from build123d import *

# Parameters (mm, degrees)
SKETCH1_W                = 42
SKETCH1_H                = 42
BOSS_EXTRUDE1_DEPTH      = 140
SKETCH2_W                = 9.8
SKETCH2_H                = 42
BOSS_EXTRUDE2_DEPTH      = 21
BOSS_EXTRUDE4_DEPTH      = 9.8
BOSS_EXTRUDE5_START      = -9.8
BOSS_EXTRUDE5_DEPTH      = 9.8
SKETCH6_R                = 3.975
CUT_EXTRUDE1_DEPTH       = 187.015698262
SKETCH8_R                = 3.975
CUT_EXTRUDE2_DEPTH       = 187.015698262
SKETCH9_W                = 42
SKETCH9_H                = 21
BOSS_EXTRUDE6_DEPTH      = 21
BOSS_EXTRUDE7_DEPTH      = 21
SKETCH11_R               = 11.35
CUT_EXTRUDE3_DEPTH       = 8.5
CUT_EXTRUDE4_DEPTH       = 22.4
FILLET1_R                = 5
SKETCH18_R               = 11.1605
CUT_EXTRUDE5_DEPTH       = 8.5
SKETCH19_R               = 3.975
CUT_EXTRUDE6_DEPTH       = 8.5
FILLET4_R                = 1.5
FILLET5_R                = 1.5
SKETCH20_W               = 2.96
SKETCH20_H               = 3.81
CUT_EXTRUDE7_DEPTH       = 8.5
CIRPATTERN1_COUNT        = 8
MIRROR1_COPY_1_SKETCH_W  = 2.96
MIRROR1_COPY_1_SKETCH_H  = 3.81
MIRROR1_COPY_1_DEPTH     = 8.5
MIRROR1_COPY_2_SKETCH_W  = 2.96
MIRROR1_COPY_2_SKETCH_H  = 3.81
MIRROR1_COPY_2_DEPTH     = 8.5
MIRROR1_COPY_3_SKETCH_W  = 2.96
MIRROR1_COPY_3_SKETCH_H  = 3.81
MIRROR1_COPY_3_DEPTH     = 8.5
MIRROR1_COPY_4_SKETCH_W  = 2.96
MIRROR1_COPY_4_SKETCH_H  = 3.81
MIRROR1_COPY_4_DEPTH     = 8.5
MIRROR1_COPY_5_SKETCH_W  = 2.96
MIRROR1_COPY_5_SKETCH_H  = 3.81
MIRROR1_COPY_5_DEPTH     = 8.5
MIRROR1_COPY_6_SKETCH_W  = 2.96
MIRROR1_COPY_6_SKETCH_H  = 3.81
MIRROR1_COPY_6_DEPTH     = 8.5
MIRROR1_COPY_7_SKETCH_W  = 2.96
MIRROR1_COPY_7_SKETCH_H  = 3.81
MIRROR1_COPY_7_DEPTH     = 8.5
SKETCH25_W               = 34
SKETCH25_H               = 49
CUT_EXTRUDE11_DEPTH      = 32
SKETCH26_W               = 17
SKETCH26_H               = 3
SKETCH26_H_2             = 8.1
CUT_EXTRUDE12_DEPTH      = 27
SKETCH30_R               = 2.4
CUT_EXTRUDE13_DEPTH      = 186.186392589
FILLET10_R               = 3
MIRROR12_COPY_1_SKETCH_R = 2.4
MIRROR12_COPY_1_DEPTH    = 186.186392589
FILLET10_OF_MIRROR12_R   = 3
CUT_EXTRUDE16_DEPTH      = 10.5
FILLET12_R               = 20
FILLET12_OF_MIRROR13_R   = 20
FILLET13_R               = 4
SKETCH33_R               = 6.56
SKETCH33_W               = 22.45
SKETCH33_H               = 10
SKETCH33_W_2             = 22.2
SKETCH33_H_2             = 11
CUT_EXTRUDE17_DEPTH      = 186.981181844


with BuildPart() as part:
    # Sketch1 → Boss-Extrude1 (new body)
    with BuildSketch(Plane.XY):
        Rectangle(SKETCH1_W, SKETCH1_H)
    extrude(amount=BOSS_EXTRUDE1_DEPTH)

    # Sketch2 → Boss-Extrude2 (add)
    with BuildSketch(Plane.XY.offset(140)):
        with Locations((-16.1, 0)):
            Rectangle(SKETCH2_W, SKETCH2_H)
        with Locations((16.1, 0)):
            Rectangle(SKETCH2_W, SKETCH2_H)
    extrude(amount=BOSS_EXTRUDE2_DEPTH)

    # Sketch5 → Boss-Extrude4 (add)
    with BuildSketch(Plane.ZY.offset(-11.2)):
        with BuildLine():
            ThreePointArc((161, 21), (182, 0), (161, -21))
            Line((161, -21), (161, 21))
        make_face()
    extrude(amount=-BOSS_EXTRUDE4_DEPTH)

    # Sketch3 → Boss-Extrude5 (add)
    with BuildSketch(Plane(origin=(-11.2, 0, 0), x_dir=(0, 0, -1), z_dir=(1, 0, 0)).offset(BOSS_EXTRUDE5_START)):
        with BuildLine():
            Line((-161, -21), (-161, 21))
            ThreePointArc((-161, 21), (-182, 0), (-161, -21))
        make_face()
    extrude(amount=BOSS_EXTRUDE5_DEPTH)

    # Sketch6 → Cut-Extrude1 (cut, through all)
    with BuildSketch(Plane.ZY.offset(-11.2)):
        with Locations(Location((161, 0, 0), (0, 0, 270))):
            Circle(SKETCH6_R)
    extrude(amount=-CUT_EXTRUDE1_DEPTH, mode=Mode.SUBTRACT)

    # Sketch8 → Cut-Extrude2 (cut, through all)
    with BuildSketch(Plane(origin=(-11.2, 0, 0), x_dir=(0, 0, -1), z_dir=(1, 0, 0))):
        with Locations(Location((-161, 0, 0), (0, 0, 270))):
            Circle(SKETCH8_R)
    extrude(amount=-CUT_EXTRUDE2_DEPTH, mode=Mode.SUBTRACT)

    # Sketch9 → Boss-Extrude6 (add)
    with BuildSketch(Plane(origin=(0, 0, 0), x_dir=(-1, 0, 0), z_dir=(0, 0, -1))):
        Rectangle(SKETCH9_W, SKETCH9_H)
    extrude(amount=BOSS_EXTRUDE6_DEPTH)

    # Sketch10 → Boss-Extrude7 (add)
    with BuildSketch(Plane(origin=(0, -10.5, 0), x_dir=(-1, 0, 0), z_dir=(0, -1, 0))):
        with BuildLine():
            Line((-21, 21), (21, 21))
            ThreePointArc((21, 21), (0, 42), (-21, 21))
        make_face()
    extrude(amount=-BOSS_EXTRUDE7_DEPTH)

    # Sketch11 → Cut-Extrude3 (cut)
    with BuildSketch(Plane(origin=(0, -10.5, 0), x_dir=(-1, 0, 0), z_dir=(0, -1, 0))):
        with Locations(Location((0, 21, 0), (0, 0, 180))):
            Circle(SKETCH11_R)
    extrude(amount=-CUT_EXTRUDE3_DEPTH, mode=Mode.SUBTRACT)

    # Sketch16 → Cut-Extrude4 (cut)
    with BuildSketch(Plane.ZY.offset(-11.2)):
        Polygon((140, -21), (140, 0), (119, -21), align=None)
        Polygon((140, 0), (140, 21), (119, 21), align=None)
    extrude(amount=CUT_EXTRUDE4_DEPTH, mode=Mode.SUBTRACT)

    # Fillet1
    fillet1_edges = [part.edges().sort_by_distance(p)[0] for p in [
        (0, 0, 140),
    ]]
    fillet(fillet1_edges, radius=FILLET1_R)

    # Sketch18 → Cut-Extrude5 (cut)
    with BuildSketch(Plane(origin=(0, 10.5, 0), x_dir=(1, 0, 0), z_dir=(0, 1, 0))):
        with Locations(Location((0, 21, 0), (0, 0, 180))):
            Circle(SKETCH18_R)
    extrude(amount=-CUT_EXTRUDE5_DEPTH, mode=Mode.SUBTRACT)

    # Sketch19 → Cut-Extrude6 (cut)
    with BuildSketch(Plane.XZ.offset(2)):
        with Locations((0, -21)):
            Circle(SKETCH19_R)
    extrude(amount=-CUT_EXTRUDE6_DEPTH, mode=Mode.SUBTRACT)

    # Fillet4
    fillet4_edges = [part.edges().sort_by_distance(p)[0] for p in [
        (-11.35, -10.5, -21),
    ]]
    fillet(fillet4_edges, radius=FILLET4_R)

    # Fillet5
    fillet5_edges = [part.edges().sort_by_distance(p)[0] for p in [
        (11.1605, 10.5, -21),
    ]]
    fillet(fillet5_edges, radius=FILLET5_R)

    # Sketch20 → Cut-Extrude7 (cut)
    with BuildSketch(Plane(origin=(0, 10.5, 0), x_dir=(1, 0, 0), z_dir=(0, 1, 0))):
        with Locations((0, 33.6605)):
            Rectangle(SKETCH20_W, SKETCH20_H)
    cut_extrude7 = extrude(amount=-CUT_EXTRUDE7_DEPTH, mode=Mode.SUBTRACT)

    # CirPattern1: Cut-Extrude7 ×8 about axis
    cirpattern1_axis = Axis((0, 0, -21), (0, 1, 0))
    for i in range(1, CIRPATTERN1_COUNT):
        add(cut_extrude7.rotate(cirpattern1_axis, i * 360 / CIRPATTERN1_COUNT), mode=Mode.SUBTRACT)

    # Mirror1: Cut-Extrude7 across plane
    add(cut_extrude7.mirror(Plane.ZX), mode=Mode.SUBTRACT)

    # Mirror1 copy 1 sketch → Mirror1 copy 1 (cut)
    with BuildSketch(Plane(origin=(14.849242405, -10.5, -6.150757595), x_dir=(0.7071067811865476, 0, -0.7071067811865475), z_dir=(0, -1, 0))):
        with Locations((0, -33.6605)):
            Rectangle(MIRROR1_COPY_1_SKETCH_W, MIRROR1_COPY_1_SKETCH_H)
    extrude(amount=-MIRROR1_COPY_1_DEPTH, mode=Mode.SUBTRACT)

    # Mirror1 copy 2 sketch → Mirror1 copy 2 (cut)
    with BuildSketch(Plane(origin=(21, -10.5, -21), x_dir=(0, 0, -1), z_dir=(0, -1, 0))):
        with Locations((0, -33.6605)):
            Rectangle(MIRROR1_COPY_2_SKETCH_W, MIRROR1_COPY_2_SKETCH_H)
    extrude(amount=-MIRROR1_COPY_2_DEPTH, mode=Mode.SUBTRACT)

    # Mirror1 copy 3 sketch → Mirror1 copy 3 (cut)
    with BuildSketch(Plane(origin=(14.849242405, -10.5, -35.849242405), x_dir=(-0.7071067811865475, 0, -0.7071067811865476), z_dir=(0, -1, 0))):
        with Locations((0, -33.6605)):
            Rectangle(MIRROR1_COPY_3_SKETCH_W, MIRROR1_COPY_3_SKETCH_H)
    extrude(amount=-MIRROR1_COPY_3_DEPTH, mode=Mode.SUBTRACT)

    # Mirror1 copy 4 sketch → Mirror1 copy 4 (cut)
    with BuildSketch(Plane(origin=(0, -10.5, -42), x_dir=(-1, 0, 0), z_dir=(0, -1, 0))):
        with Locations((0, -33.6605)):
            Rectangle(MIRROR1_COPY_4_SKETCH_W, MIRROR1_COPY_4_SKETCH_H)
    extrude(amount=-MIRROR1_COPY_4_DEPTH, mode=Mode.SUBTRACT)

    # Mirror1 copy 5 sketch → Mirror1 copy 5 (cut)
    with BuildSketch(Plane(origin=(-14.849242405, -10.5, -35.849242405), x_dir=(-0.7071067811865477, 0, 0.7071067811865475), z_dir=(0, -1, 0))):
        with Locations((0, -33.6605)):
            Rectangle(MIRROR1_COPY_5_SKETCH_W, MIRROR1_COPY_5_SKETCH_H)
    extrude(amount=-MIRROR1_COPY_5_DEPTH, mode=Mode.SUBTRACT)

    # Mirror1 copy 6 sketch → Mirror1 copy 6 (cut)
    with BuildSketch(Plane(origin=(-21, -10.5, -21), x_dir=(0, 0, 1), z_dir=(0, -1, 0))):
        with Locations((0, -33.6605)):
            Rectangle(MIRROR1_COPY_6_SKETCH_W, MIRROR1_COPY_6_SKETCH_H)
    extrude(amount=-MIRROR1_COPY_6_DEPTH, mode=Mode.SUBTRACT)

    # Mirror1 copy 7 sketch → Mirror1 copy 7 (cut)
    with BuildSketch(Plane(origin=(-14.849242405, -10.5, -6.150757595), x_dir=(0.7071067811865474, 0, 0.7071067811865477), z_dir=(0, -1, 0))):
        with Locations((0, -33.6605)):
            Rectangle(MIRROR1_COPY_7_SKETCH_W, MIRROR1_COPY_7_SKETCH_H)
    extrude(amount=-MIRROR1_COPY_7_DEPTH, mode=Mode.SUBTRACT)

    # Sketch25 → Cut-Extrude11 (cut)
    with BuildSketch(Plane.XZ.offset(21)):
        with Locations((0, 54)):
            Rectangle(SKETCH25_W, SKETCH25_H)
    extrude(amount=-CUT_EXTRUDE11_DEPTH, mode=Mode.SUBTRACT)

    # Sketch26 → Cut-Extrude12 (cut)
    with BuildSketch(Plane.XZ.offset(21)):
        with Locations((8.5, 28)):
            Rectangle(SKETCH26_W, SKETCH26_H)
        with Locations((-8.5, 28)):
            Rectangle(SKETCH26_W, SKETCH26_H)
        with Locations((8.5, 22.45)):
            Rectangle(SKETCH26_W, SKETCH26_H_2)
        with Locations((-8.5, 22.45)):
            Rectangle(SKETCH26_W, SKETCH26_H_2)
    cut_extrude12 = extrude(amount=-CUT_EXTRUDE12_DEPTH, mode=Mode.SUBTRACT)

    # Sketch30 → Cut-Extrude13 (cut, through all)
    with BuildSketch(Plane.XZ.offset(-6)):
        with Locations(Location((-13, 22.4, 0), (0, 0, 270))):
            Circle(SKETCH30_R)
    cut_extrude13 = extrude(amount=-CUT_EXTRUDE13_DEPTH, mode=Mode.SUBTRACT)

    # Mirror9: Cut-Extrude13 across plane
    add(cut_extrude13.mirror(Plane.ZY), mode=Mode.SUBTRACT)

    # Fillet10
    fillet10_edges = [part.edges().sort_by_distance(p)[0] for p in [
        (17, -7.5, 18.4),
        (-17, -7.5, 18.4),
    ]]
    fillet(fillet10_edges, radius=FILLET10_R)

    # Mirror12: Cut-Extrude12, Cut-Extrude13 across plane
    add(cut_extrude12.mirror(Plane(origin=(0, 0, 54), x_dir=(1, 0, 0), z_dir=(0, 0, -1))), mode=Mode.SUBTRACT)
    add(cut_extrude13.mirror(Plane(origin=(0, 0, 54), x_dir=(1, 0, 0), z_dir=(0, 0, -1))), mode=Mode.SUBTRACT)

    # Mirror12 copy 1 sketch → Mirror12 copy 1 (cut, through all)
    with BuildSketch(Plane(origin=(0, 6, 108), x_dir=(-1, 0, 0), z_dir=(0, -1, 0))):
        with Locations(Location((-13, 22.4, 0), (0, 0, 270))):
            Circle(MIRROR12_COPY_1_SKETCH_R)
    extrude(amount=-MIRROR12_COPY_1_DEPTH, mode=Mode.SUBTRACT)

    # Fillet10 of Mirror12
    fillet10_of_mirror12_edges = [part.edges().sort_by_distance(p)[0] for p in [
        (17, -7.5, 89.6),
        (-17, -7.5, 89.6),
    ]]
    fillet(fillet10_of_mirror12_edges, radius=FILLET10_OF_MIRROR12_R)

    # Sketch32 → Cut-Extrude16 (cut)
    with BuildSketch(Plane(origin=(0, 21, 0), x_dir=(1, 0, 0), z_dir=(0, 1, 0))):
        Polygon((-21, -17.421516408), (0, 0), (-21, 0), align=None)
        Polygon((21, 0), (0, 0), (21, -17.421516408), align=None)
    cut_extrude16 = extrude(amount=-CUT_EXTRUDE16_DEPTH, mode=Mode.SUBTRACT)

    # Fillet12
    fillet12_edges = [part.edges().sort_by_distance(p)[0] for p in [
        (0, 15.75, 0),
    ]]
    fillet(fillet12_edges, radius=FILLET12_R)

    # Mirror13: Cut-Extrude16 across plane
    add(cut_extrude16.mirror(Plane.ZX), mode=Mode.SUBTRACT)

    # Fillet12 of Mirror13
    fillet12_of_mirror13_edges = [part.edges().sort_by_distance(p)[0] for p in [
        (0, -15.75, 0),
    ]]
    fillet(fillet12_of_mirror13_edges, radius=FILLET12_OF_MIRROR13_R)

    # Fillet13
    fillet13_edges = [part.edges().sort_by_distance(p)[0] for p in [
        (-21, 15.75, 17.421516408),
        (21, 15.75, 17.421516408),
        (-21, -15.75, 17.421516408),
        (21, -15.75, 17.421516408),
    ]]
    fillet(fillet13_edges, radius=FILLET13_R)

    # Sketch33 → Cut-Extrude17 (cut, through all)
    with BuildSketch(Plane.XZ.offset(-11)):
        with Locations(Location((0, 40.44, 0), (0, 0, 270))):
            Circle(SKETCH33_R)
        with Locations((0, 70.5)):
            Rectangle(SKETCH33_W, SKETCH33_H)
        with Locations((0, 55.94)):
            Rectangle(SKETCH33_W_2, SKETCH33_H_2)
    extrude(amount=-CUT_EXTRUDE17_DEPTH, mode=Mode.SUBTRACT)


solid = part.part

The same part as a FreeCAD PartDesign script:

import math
import FreeCAD as App
import Part
import Sketcher
Q = App.Units.Quantity


def edges_at(feature, points):
    """Names of the edges that pass closest to the given points."""
    edges = feature.Shape.Edges
    near = lambda p: min(range(len(edges)), key=lambda i: edges[i].distToShape(Part.Vertex(*p))[0])
    return sorted({f"Edge{near(p) + 1}" for p in points})

doc = App.newDocument("Part")
body = doc.addObject("PartDesign::Body", "Body")

sketch1 = doc.addObject("Sketcher::SketchObject", "Sketch")
body.addObject(sketch1)
sketch1.AttachmentSupport = (doc.XY_Plane, [""])
sketch1.MapMode = "FlatFace"
sketch1.addGeometry(Part.LineSegment(App.Vector(-21, 21, 0), App.Vector(-21, -21, 0)), False)
sketch1.addGeometry(Part.LineSegment(App.Vector(-21, -21, 0), App.Vector(21, -21, 0)), False)
sketch1.addGeometry(Part.LineSegment(App.Vector(21, -21, 0), App.Vector(21, 21, 0)), False)
sketch1.addGeometry(Part.LineSegment(App.Vector(21, 21, 0), App.Vector(-21, 21, 0)), False)
sketch1.addConstraint(Sketcher.Constraint("Coincident", 0, 2, 1, 1))
sketch1.addConstraint(Sketcher.Constraint("Coincident", 1, 2, 2, 1))
sketch1.addConstraint(Sketcher.Constraint("Coincident", 2, 2, 3, 1))
sketch1.addConstraint(Sketcher.Constraint("Coincident", 3, 2, 0, 1))
sketch1.addConstraint(Sketcher.Constraint("Vertical", 0))
sketch1.addConstraint(Sketcher.Constraint("Horizontal", 1))
sketch1.addConstraint(Sketcher.Constraint("Vertical", 2))
sketch1.addConstraint(Sketcher.Constraint("Horizontal", 3))
sketch1.addConstraint(Sketcher.Constraint("Symmetric", 0, 2, 2, 2, -1, 1))
sketch1.addConstraint(Sketcher.Constraint("Equal", 3, 0))
sketch1.addConstraint(Sketcher.Constraint("DistanceX", 1, 1, 1, 2, Q("42 mm")))
pad1 = doc.addObject("PartDesign::Pad", "Pad")
body.addObject(pad1)
pad1.Profile = sketch1
pad1.Length = 140

sketch2 = doc.addObject("Sketcher::SketchObject", "Sketch001")
body.addObject(sketch2)
sketch2.AttachmentSupport = (doc.XY_Plane, [""])
sketch2.MapMode = "FlatFace"
sketch2.AttachmentOffset = App.Placement(App.Vector(0, 0, 140), App.Rotation())
sketch2.addGeometry(Part.LineSegment(App.Vector(-21, 21, 0), App.Vector(-21, -21, 0)), False)
sketch2.addGeometry(Part.LineSegment(App.Vector(-21, -21, 0), App.Vector(-11, -21, 0)), False)
sketch2.addGeometry(Part.LineSegment(App.Vector(-11, -21, 0), App.Vector(-11, 21, 0)), False)
sketch2.addGeometry(Part.LineSegment(App.Vector(-11, 21, 0), App.Vector(-21, 21, 0)), False)
sketch2.addGeometry(Part.LineSegment(App.Vector(11, 21, 0), App.Vector(11, -21, 0)), False)
sketch2.addGeometry(Part.LineSegment(App.Vector(11, -21, 0), App.Vector(21, -21, 0)), False)
sketch2.addGeometry(Part.LineSegment(App.Vector(21, -21, 0), App.Vector(21, 21, 0)), False)
sketch2.addGeometry(Part.LineSegment(App.Vector(21, 21, 0), App.Vector(11, 21, 0)), False)
sketch2.addConstraint(Sketcher.Constraint("Coincident", 0, 2, 1, 1))
sketch2.addConstraint(Sketcher.Constraint("Coincident", 1, 2, 2, 1))
sketch2.addConstraint(Sketcher.Constraint("Coincident", 2, 2, 3, 1))
sketch2.addConstraint(Sketcher.Constraint("Coincident", 3, 2, 0, 1))
sketch2.addConstraint(Sketcher.Constraint("Coincident", 4, 2, 5, 1))
sketch2.addConstraint(Sketcher.Constraint("Coincident", 5, 2, 6, 1))
sketch2.addConstraint(Sketcher.Constraint("Coincident", 6, 2, 7, 1))
sketch2.addConstraint(Sketcher.Constraint("Coincident", 7, 2, 4, 1))
sketch2.addConstraint(Sketcher.Constraint("Vertical", 0))
sketch2.addConstraint(Sketcher.Constraint("Horizontal", 1))
sketch2.addConstraint(Sketcher.Constraint("Vertical", 2))
sketch2.addConstraint(Sketcher.Constraint("Horizontal", 3))
sketch2.addConstraint(Sketcher.Constraint("Vertical", 4))
sketch2.addConstraint(Sketcher.Constraint("Horizontal", 5))
sketch2.addConstraint(Sketcher.Constraint("Vertical", 6))
sketch2.addConstraint(Sketcher.Constraint("Horizontal", 7))
sketch2.addConstraint(Sketcher.Constraint("Symmetric", 2, 2, 4, 2, -1, 1))
sketch2.addConstraint(Sketcher.Constraint("Symmetric", 0, 2, 6, 2, -1, 1))
sketch2.addConstraint(Sketcher.Constraint("Horizontal", 1, 2, 4, 2))
sketch2.addConstraint(Sketcher.Constraint("DistanceY", 0, 2, 0, 1, Q("42 mm")))
sketch2.addConstraint(Sketcher.Constraint("DistanceX", 1, 1, 1, 2, Q("9.8 mm")))
sketch2.addConstraint(Sketcher.Constraint("DistanceX", 0, 2, -1, 1, Q("21 mm")))
pad2 = doc.addObject("PartDesign::Pad", "Pad001")
body.addObject(pad2)
pad2.Profile = sketch2
pad2.Length = 21

sketch3 = doc.addObject("Sketcher::SketchObject", "Sketch002")
body.addObject(sketch3)
sketch3.AttachmentSupport = (doc.YZ_Plane, [""])
sketch3.MapMode = "FlatFace"
sketch3.AttachmentOffset = App.Placement(App.Vector(0, 0, 11.2), App.Rotation())
sketch3.addGeometry(Part.ArcOfCircle(Part.Circle(App.Vector(0, 161, 0), App.Vector(0, 0, 1), 21), math.radians(0), math.radians(180)), False)
sketch3.addGeometry(Part.LineSegment(App.Vector(21, 161, 0), App.Vector(-21, 161, 0)), False)
sketch3.addConstraint(Sketcher.Constraint("Coincident", 0, 1, 1, 1))
sketch3.addConstraint(Sketcher.Constraint("Coincident", 1, 2, 0, 2))
sketch3.addConstraint(Sketcher.Constraint("Horizontal", 1))
sketch3.addConstraint(Sketcher.Constraint("PointOnObject", 0, 3, -2))
sketch3.addConstraint(Sketcher.Constraint("Radius", 0, Q("21 mm")))
sketch3.addConstraint(Sketcher.Constraint("DistanceY", -1, 1, 0, 3, Q("161 mm")))
sketch3.addConstraint(Sketcher.Constraint("DistanceY", -1, 1, 0, 1, Q("161 mm")))
pad3 = doc.addObject("PartDesign::Pad", "Pad002")
body.addObject(pad3)
pad3.Profile = sketch3
pad3.Length = 9.8

sketch4 = doc.addObject("Sketcher::SketchObject", "Sketch003")
body.addObject(sketch4)
sketch4.AttachmentSupport = (doc.YZ_Plane, [""])
sketch4.MapMode = "FlatFace"
sketch4.AttachmentOffset = App.Placement(App.Vector(0, 0, -21), App.Rotation())
sketch4.addGeometry(Part.LineSegment(App.Vector(-21, 161, 0), App.Vector(21, 161, 0)), False)
sketch4.addGeometry(Part.ArcOfCircle(Part.Circle(App.Vector(0, 161, 0), App.Vector(0, 0, 1), 21), math.radians(0), math.radians(180)), False)
sketch4.addConstraint(Sketcher.Constraint("Coincident", 0, 1, 1, 2))
sketch4.addConstraint(Sketcher.Constraint("Coincident", 1, 1, 0, 2))
sketch4.addConstraint(Sketcher.Constraint("Horizontal", 0))
sketch4.addConstraint(Sketcher.Constraint("PointOnObject", 1, 3, -2))
sketch4.addConstraint(Sketcher.Constraint("Horizontal", 1, 3, 0, 1))
sketch4.addConstraint(Sketcher.Constraint("Radius", 1, Q("21 mm")))
sketch4.addConstraint(Sketcher.Constraint("DistanceY", -1, 1, 1, 3, Q("161 mm")))
pad4 = doc.addObject("PartDesign::Pad", "Pad003")
body.addObject(pad4)
pad4.Profile = sketch4
pad4.Length = 9.8

sketch5 = doc.addObject("Sketcher::SketchObject", "Sketch004")
body.addObject(sketch5)
sketch5.AttachmentSupport = (doc.YZ_Plane, [""])
sketch5.MapMode = "FlatFace"
sketch5.AttachmentOffset = App.Placement(App.Vector(0, 0, 11.2), App.Rotation())
sketch5.addGeometry(Part.Circle(App.Vector(0, 161, 0), App.Vector(0, 0, 1), 4), False)
sketch5.addConstraint(Sketcher.Constraint("PointOnObject", 0, 3, -2))
sketch5.addConstraint(Sketcher.Constraint("Diameter", 0, Q("7.95 mm")))
sketch5.addConstraint(Sketcher.Constraint("DistanceY", -1, 1, 0, 3, Q("161 mm")))
pocket1 = doc.addObject("PartDesign::Pocket", "Pocket")
body.addObject(pocket1)
pocket1.Profile = sketch5
pocket1.Type = "ThroughAll"
pocket1.Reversed = True

sketch6 = doc.addObject("Sketcher::SketchObject", "Sketch005")
body.addObject(sketch6)
sketch6.AttachmentSupport = (doc.YZ_Plane, [""])
sketch6.MapMode = "FlatFace"
sketch6.AttachmentOffset = App.Placement(App.Vector(0, 0, -11.2), App.Rotation())
sketch6.addGeometry(Part.Circle(App.Vector(0, 161, 0), App.Vector(0, 0, 1), 4), False)
sketch6.addConstraint(Sketcher.Constraint("PointOnObject", 0, 3, -2))
sketch6.addConstraint(Sketcher.Constraint("Diameter", 0, Q("7.95 mm")))
sketch6.addConstraint(Sketcher.Constraint("DistanceY", -1, 1, 0, 3, Q("161 mm")))
pocket2 = doc.addObject("PartDesign::Pocket", "Pocket001")
body.addObject(pocket2)
pocket2.Profile = sketch6
pocket2.Type = "ThroughAll"

sketch7 = doc.addObject("Sketcher::SketchObject", "Sketch006")
body.addObject(sketch7)
sketch7.AttachmentSupport = (doc.XY_Plane, [""])
sketch7.MapMode = "FlatFace"
sketch7.addGeometry(Part.LineSegment(App.Vector(21, 10, 0), App.Vector(21, -10, 0)), False)
sketch7.addGeometry(Part.LineSegment(App.Vector(21, -10, 0), App.Vector(-21, -10, 0)), False)
sketch7.addGeometry(Part.LineSegment(App.Vector(-21, -10, 0), App.Vector(-21, 10, 0)), False)
sketch7.addGeometry(Part.LineSegment(App.Vector(-21, 10, 0), App.Vector(21, 10, 0)), False)
sketch7.addConstraint(Sketcher.Constraint("Coincident", 0, 2, 1, 1))
sketch7.addConstraint(Sketcher.Constraint("Coincident", 1, 2, 2, 1))
sketch7.addConstraint(Sketcher.Constraint("Coincident", 2, 2, 3, 1))
sketch7.addConstraint(Sketcher.Constraint("Coincident", 3, 2, 0, 1))
sketch7.addConstraint(Sketcher.Constraint("Vertical", 0))
sketch7.addConstraint(Sketcher.Constraint("Horizontal", 1))
sketch7.addConstraint(Sketcher.Constraint("Vertical", 2))
sketch7.addConstraint(Sketcher.Constraint("Horizontal", 3))
sketch7.addConstraint(Sketcher.Constraint("Symmetric", 0, 2, 2, 2, -1, 1))
sketch7.addConstraint(Sketcher.Constraint("DistanceX", 1, 2, 1, 1, Q("42 mm")))
sketch7.addConstraint(Sketcher.Constraint("DistanceY", 0, 2, 0, 1, Q("21 mm")))
pad5 = doc.addObject("PartDesign::Pad", "Pad004")
body.addObject(pad5)
pad5.Profile = sketch7
pad5.Length = 21
pad5.Reversed = True

sketch8 = doc.addObject("Sketcher::SketchObject", "Sketch007")
body.addObject(sketch8)
sketch8.AttachmentSupport = (doc.XZ_Plane, [""])
sketch8.MapMode = "FlatFace"
sketch8.AttachmentOffset = App.Placement(App.Vector(0, 0, 10.5), App.Rotation())
sketch8.addGeometry(Part.LineSegment(App.Vector(21, -21, 0), App.Vector(-21, -21, 0)), False)
sketch8.addGeometry(Part.ArcOfCircle(Part.Circle(App.Vector(0, -21, 0), App.Vector(0, 0, 1), 21), math.radians(180), math.radians(360)), False)
sketch8.addConstraint(Sketcher.Constraint("Coincident", 0, 1, 1, 2))
sketch8.addConstraint(Sketcher.Constraint("Coincident", 1, 1, 0, 2))
sketch8.addConstraint(Sketcher.Constraint("Horizontal", 0))
sketch8.addConstraint(Sketcher.Constraint("PointOnObject", 1, 3, -2))
sketch8.addConstraint(Sketcher.Constraint("Horizontal", 1, 3, 0, 1))
sketch8.addConstraint(Sketcher.Constraint("Radius", 1, Q("21 mm")))
sketch8.addConstraint(Sketcher.Constraint("DistanceY", 1, 3, -1, 1, Q("21 mm")))
pad6 = doc.addObject("PartDesign::Pad", "Pad005")
body.addObject(pad6)
pad6.Profile = sketch8
pad6.Length = 21
pad6.Reversed = True

sketch9 = doc.addObject("Sketcher::SketchObject", "Sketch008")
body.addObject(sketch9)
sketch9.AttachmentSupport = (doc.XZ_Plane, [""])
sketch9.MapMode = "FlatFace"
sketch9.AttachmentOffset = App.Placement(App.Vector(0, 0, 10.5), App.Rotation())
sketch9.addGeometry(Part.Circle(App.Vector(0, -21, 0), App.Vector(0, 0, 1), 11), False)
sketch9.addConstraint(Sketcher.Constraint("PointOnObject", 0, 3, -2))
sketch9.addConstraint(Sketcher.Constraint("Diameter", 0, Q("22.7 mm")))
sketch9.addConstraint(Sketcher.Constraint("DistanceY", 0, 3, -1, 1, Q("21 mm")))
pocket3 = doc.addObject("PartDesign::Pocket", "Pocket002")
body.addObject(pocket3)
pocket3.Profile = sketch9
pocket3.Length = 8.5

sketch10 = doc.addObject("Sketcher::SketchObject", "Sketch009")
body.addObject(sketch10)
sketch10.AttachmentSupport = (doc.YZ_Plane, [""])
sketch10.MapMode = "FlatFace"
sketch10.AttachmentOffset = App.Placement(App.Vector(0, 0, 11.2), App.Rotation())
sketch10.addGeometry(Part.LineSegment(App.Vector(-21, 140, 0), App.Vector(0, 140, 0)), False)
sketch10.addGeometry(Part.LineSegment(App.Vector(0, 140, 0), App.Vector(-21, 119, 0)), False)
sketch10.addGeometry(Part.LineSegment(App.Vector(-21, 119, 0), App.Vector(-21, 140, 0)), False)
sketch10.addGeometry(Part.LineSegment(App.Vector(0, 140, 0), App.Vector(21, 140, 0)), False)
sketch10.addGeometry(Part.LineSegment(App.Vector(21, 140, 0), App.Vector(21, 119, 0)), False)
sketch10.addGeometry(Part.LineSegment(App.Vector(21, 119, 0), App.Vector(0, 140, 0)), False)
sketch10.addConstraint(Sketcher.Constraint("Coincident", 0, 2, 1, 1))
sketch10.addConstraint(Sketcher.Constraint("Coincident", 1, 2, 2, 1))
sketch10.addConstraint(Sketcher.Constraint("Coincident", 2, 2, 0, 1))
sketch10.addConstraint(Sketcher.Constraint("Coincident", 3, 2, 4, 1))
sketch10.addConstraint(Sketcher.Constraint("Coincident", 4, 2, 5, 1))
sketch10.addConstraint(Sketcher.Constraint("Coincident", 5, 2, 3, 1))
sketch10.addConstraint(Sketcher.Constraint("Horizontal", 0))
sketch10.addConstraint(Sketcher.Constraint("Vertical", 2))
sketch10.addConstraint(Sketcher.Constraint("Horizontal", 3))
sketch10.addConstraint(Sketcher.Constraint("Vertical", 4))
sketch10.addConstraint(Sketcher.Constraint("Coincident", 5, 2, 0, 2))
sketch10.addConstraint(Sketcher.Constraint("Symmetric", 1, 2, 4, 2, -2))
sketch10.addConstraint(Sketcher.Constraint("PointOnObject", 0, 2, -2))
sketch10.addConstraint(Sketcher.Constraint("Perpendicular", 1, 5))
sketch10.addConstraint(Sketcher.Constraint("DistanceX", 0, 1, 0, 2, Q("21 mm")))
sketch10.addConstraint(Sketcher.Constraint("DistanceY", -1, 1, 0, 2, Q("140 mm")))
pocket4 = doc.addObject("PartDesign::Pocket", "Pocket003")
body.addObject(pocket4)
pocket4.Profile = sketch10
pocket4.Length = 22.4
doc.recompute()

fillet = doc.addObject("PartDesign::Fillet", "Fillet")
body.addObject(fillet)
fillet.Base = (pocket4, edges_at(pocket4, [(0, 0, 140)]))
fillet.Radius = 5

sketch11 = doc.addObject("Sketcher::SketchObject", "Sketch010")
body.addObject(sketch11)
sketch11.AttachmentSupport = (doc.XZ_Plane, [""])
sketch11.MapMode = "FlatFace"
sketch11.AttachmentOffset = App.Placement(App.Vector(0, 0, -10.5), App.Rotation())
sketch11.addGeometry(Part.Circle(App.Vector(0, -21, 0), App.Vector(0, 0, 1), 11), False)
sketch11.addConstraint(Sketcher.Constraint("PointOnObject", 0, 3, -2))
sketch11.addConstraint(Sketcher.Constraint("Diameter", 0, Q("22.321 mm")))
sketch11.addConstraint(Sketcher.Constraint("DistanceY", 0, 3, -1, 1, Q("21 mm")))
pocket5 = doc.addObject("PartDesign::Pocket", "Pocket004")
body.addObject(pocket5)
pocket5.Profile = sketch11
pocket5.Length = 8.5
pocket5.Reversed = True

sketch12 = doc.addObject("Sketcher::SketchObject", "Sketch011")
body.addObject(sketch12)
sketch12.AttachmentSupport = (doc.XZ_Plane, [""])
sketch12.MapMode = "FlatFace"
sketch12.AttachmentOffset = App.Placement(App.Vector(0, 0, 2), App.Rotation())
sketch12.addGeometry(Part.Circle(App.Vector(0, -21, 0), App.Vector(0, 0, 1), 4), False)
sketch12.addConstraint(Sketcher.Constraint("PointOnObject", 0, 3, -2))
sketch12.addConstraint(Sketcher.Constraint("Diameter", 0, Q("7.95 mm")))
sketch12.addConstraint(Sketcher.Constraint("DistanceY", 0, 3, -1, 1, Q("21 mm")))
pocket6 = doc.addObject("PartDesign::Pocket", "Pocket005")
body.addObject(pocket6)
pocket6.Profile = sketch12
pocket6.Length = 8.5
doc.recompute()

fillet2 = doc.addObject("PartDesign::Fillet", "Fillet001")
body.addObject(fillet2)
fillet2.Base = (pocket6, edges_at(pocket6, [(-11.35, -10.5, -21)]))
fillet2.Radius = 1.5
doc.recompute()

fillet3 = doc.addObject("PartDesign::Fillet", "Fillet002")
body.addObject(fillet3)
fillet3.Base = (fillet2, edges_at(fillet2, [(11.161, 10.5, -21)]))
fillet3.Radius = 1.5

sketch13 = doc.addObject("Sketcher::SketchObject", "Sketch012")
body.addObject(sketch13)
sketch13.AttachmentSupport = (doc.XZ_Plane, [""])
sketch13.MapMode = "FlatFace"
sketch13.AttachmentOffset = App.Placement(App.Vector(0, 0, -10.5), App.Rotation())
sketch13.addGeometry(Part.LineSegment(App.Vector(-1.5, -35.6, 0), App.Vector(-1.5, -31.8, 0)), False)
sketch13.addGeometry(Part.LineSegment(App.Vector(-1.5, -31.8, 0), App.Vector(1.5, -31.8, 0)), False)
sketch13.addGeometry(Part.LineSegment(App.Vector(1.5, -31.8, 0), App.Vector(1.5, -35.6, 0)), False)
sketch13.addGeometry(Part.LineSegment(App.Vector(1.5, -35.6, 0), App.Vector(-1.5, -35.6, 0)), False)
sketch13.addConstraint(Sketcher.Constraint("Coincident", 0, 2, 1, 1))
sketch13.addConstraint(Sketcher.Constraint("Coincident", 1, 2, 2, 1))
sketch13.addConstraint(Sketcher.Constraint("Coincident", 2, 2, 3, 1))
sketch13.addConstraint(Sketcher.Constraint("Coincident", 3, 2, 0, 1))
sketch13.addConstraint(Sketcher.Constraint("Vertical", 0))
sketch13.addConstraint(Sketcher.Constraint("Horizontal", 1))
sketch13.addConstraint(Sketcher.Constraint("Vertical", 2))
sketch13.addConstraint(Sketcher.Constraint("Horizontal", 3))
sketch13.addConstraint(Sketcher.Constraint("DistanceX", 1, 1, 1, 2, Q("2.96 mm")))
sketch13.addConstraint(Sketcher.Constraint("DistanceY", 0, 1, 0, 2, Q("3.81 mm")))
sketch13.addConstraint(Sketcher.Constraint("DistanceX", 0, 2, -1, 1, Q("1.48 mm")))
sketch13.addConstraint(Sketcher.Constraint("DistanceY", 0, 2, -1, 1, Q("31.7555 mm")))
pocket7 = doc.addObject("PartDesign::Pocket", "Pocket006")
body.addObject(pocket7)
pocket7.Profile = sketch13
pocket7.Length = 8.5
pocket7.Reversed = True
doc.recompute()

datumline = doc.addObject("PartDesign::Line", "DatumLine")
body.addObject(datumline)
datumline.Placement = App.Placement(App.Vector(0, 0, -21), App.Rotation(App.Vector(0, 0, 1), App.Vector(0, 1, 0)))
polarpattern = doc.addObject("PartDesign::PolarPattern", "PolarPattern")
body.addObject(polarpattern)
polarpattern.Originals = [pocket7]
polarpattern.Axis = (datumline, [""])
polarpattern.Angle = 360
polarpattern.Occurrences = 8
body.Tip = polarpattern
doc.recompute()

mirrored = doc.addObject("PartDesign::Mirrored", "Mirrored")
body.addObject(mirrored)
mirrored.Originals = [pocket7]
mirrored.MirrorPlane = (doc.XZ_Plane, [""])
body.Tip = mirrored

sketch14 = doc.addObject("Sketcher::SketchObject", "Sketch013")
body.addObject(sketch14)
sketch14.AttachmentSupport = (doc.XZ_Plane, [""])
sketch14.MapMode = "FlatFace"
sketch14.AttachmentOffset = App.Placement(App.Vector(0, 0, 10.5), App.Rotation())
sketch14.addGeometry(Part.LineSegment(App.Vector(-8.7, -27.6, 0), App.Vector(-11.3, -30.3, 0)), False)
sketch14.addGeometry(Part.LineSegment(App.Vector(-11.3, -30.3, 0), App.Vector(-9.3, -32.3, 0)), False)
sketch14.addGeometry(Part.LineSegment(App.Vector(-9.3, -32.3, 0), App.Vector(-6.6, -29.7, 0)), False)
sketch14.addGeometry(Part.LineSegment(App.Vector(-6.6, -29.7, 0), App.Vector(-8.7, -27.6, 0)), False)
sketch14.addConstraint(Sketcher.Constraint("Coincident", 0, 2, 1, 1))
sketch14.addConstraint(Sketcher.Constraint("Coincident", 1, 2, 2, 1))
sketch14.addConstraint(Sketcher.Constraint("Coincident", 2, 2, 3, 1))
sketch14.addConstraint(Sketcher.Constraint("Coincident", 3, 2, 0, 1))
sketch14.addConstraint(Sketcher.Constraint("Perpendicular", 0, 1))
sketch14.addConstraint(Sketcher.Constraint("Perpendicular", 1, 2))
sketch14.addConstraint(Sketcher.Constraint("Perpendicular", 2, 3))
sketch14.addConstraint(Sketcher.Constraint("Angle", 0, Q("-135 deg")))
sketch14.addConstraint(Sketcher.Constraint("Distance", 0, Q("3.81 mm")))
sketch14.addConstraint(Sketcher.Constraint("Distance", 1, Q("2.96 mm")))
sketch14.addConstraint(Sketcher.Constraint("DistanceX", 0, 2, -1, 1, Q("11.345882 mm")))
sketch14.addConstraint(Sketcher.Constraint("DistanceY", 1, 2, -1, 1, Q("32.345882 mm")))
pocket8 = doc.addObject("PartDesign::Pocket", "Pocket007")
body.addObject(pocket8)
pocket8.Profile = sketch14
pocket8.Length = 8.5

sketch15 = doc.addObject("Sketcher::SketchObject", "Sketch014")
body.addObject(sketch15)
sketch15.AttachmentSupport = (doc.XZ_Plane, [""])
sketch15.MapMode = "FlatFace"
sketch15.AttachmentOffset = App.Placement(App.Vector(0, 0, 10.5), App.Rotation())
sketch15.addGeometry(Part.LineSegment(App.Vector(-10.8, -19.5, 0), App.Vector(-14.6, -19.5, 0)), False)
sketch15.addGeometry(Part.LineSegment(App.Vector(-14.6, -19.5, 0), App.Vector(-14.6, -22.5, 0)), False)
sketch15.addGeometry(Part.LineSegment(App.Vector(-14.6, -22.5, 0), App.Vector(-10.8, -22.5, 0)), False)
sketch15.addGeometry(Part.LineSegment(App.Vector(-10.8, -22.5, 0), App.Vector(-10.8, -19.5, 0)), False)
sketch15.addConstraint(Sketcher.Constraint("Coincident", 0, 2, 1, 1))
sketch15.addConstraint(Sketcher.Constraint("Coincident", 1, 2, 2, 1))
sketch15.addConstraint(Sketcher.Constraint("Coincident", 2, 2, 3, 1))
sketch15.addConstraint(Sketcher.Constraint("Coincident", 3, 2, 0, 1))
sketch15.addConstraint(Sketcher.Constraint("Horizontal", 0))
sketch15.addConstraint(Sketcher.Constraint("Vertical", 1))
sketch15.addConstraint(Sketcher.Constraint("Horizontal", 2))
sketch15.addConstraint(Sketcher.Constraint("Vertical", 3))
sketch15.addConstraint(Sketcher.Constraint("DistanceX", 0, 2, 0, 1, Q("3.81 mm")))
sketch15.addConstraint(Sketcher.Constraint("DistanceY", 1, 2, 1, 1, Q("2.96 mm")))
sketch15.addConstraint(Sketcher.Constraint("DistanceY", 0, 2, -1, 1, Q("19.52 mm")))
sketch15.addConstraint(Sketcher.Constraint("DistanceX", 0, 2, -1, 1, Q("14.5655 mm")))
pocket9 = doc.addObject("PartDesign::Pocket", "Pocket008")
body.addObject(pocket9)
pocket9.Profile = sketch15
pocket9.Length = 8.5

sketch16 = doc.addObject("Sketcher::SketchObject", "Sketch015")
body.addObject(sketch16)
sketch16.AttachmentSupport = (doc.XZ_Plane, [""])
sketch16.MapMode = "FlatFace"
sketch16.AttachmentOffset = App.Placement(App.Vector(0, 0, 10.5), App.Rotation())
sketch16.addGeometry(Part.LineSegment(App.Vector(-6.6, -12.3, 0), App.Vector(-9.3, -9.7, 0)), False)
sketch16.addGeometry(Part.LineSegment(App.Vector(-9.3, -9.7, 0), App.Vector(-11.3, -11.7, 0)), False)
sketch16.addGeometry(Part.LineSegment(App.Vector(-11.3, -11.7, 0), App.Vector(-8.7, -14.4, 0)), False)
sketch16.addGeometry(Part.LineSegment(App.Vector(-8.7, -14.4, 0), App.Vector(-6.6, -12.3, 0)), False)
sketch16.addConstraint(Sketcher.Constraint("Coincident", 0, 2, 1, 1))
sketch16.addConstraint(Sketcher.Constraint("Coincident", 1, 2, 2, 1))
sketch16.addConstraint(Sketcher.Constraint("Coincident", 2, 2, 3, 1))
sketch16.addConstraint(Sketcher.Constraint("Coincident", 3, 2, 0, 1))
sketch16.addConstraint(Sketcher.Constraint("Perpendicular", 0, 1))
sketch16.addConstraint(Sketcher.Constraint("Perpendicular", 1, 2))
sketch16.addConstraint(Sketcher.Constraint("Perpendicular", 2, 3))
sketch16.addConstraint(Sketcher.Constraint("Angle", 0, Q("135 deg")))
sketch16.addConstraint(Sketcher.Constraint("Distance", 0, Q("3.81 mm")))
sketch16.addConstraint(Sketcher.Constraint("Distance", 1, Q("2.96 mm")))
sketch16.addConstraint(Sketcher.Constraint("DistanceY", 0, 2, -1, 1, Q("9.654118 mm")))
sketch16.addConstraint(Sketcher.Constraint("DistanceX", 1, 2, -1, 1, Q("11.345882 mm")))
pocket10 = doc.addObject("PartDesign::Pocket", "Pocket009")
body.addObject(pocket10)
pocket10.Profile = sketch16
pocket10.Length = 8.5

sketch17 = doc.addObject("Sketcher::SketchObject", "Sketch016")
body.addObject(sketch17)
sketch17.AttachmentSupport = (doc.XZ_Plane, [""])
sketch17.MapMode = "FlatFace"
sketch17.AttachmentOffset = App.Placement(App.Vector(0, 0, 10.5), App.Rotation())
sketch17.addGeometry(Part.LineSegment(App.Vector(1.5, -10.2, 0), App.Vector(1.5, -6.4, 0)), False)
sketch17.addGeometry(Part.LineSegment(App.Vector(1.5, -6.4, 0), App.Vector(-1.5, -6.4, 0)), False)
sketch17.addGeometry(Part.LineSegment(App.Vector(-1.5, -6.4, 0), App.Vector(-1.5, -10.2, 0)), False)
sketch17.addGeometry(Part.LineSegment(App.Vector(-1.5, -10.2, 0), App.Vector(1.5, -10.2, 0)), False)
sketch17.addConstraint(Sketcher.Constraint("Coincident", 0, 2, 1, 1))
sketch17.addConstraint(Sketcher.Constraint("Coincident", 1, 2, 2, 1))
sketch17.addConstraint(Sketcher.Constraint("Coincident", 2, 2, 3, 1))
sketch17.addConstraint(Sketcher.Constraint("Coincident", 3, 2, 0, 1))
sketch17.addConstraint(Sketcher.Constraint("Vertical", 0))
sketch17.addConstraint(Sketcher.Constraint("Horizontal", 1))
sketch17.addConstraint(Sketcher.Constraint("Vertical", 2))
sketch17.addConstraint(Sketcher.Constraint("Horizontal", 3))
sketch17.addConstraint(Sketcher.Constraint("DistanceX", 1, 2, 1, 1, Q("2.96 mm")))
sketch17.addConstraint(Sketcher.Constraint("DistanceY", 0, 1, 0, 2, Q("3.81 mm")))
sketch17.addConstraint(Sketcher.Constraint("DistanceX", -1, 1, 0, 2, Q("1.48 mm")))
sketch17.addConstraint(Sketcher.Constraint("DistanceY", 0, 2, -1, 1, Q("6.4345 mm")))
pocket11 = doc.addObject("PartDesign::Pocket", "Pocket010")
body.addObject(pocket11)
pocket11.Profile = sketch17
pocket11.Length = 8.5

sketch18 = doc.addObject("Sketcher::SketchObject", "Sketch017")
body.addObject(sketch18)
sketch18.AttachmentSupport = (doc.XZ_Plane, [""])
sketch18.MapMode = "FlatFace"
sketch18.AttachmentOffset = App.Placement(App.Vector(0, 0, 10.5), App.Rotation())
sketch18.addGeometry(Part.LineSegment(App.Vector(8.7, -14.4, 0), App.Vector(11.3, -11.7, 0)), False)
sketch18.addGeometry(Part.LineSegment(App.Vector(11.3, -11.7, 0), App.Vector(9.3, -9.7, 0)), False)
sketch18.addGeometry(Part.LineSegment(App.Vector(9.3, -9.7, 0), App.Vector(6.6, -12.3, 0)), False)
sketch18.addGeometry(Part.LineSegment(App.Vector(6.6, -12.3, 0), App.Vector(8.7, -14.4, 0)), False)
sketch18.addConstraint(Sketcher.Constraint("Coincident", 0, 2, 1, 1))
sketch18.addConstraint(Sketcher.Constraint("Coincident", 1, 2, 2, 1))
sketch18.addConstraint(Sketcher.Constraint("Coincident", 2, 2, 3, 1))
sketch18.addConstraint(Sketcher.Constraint("Coincident", 3, 2, 0, 1))
sketch18.addConstraint(Sketcher.Constraint("Perpendicular", 0, 1))
sketch18.addConstraint(Sketcher.Constraint("Perpendicular", 1, 2))
sketch18.addConstraint(Sketcher.Constraint("Perpendicular", 2, 3))
sketch18.addConstraint(Sketcher.Constraint("Angle", 0, Q("45 deg")))
sketch18.addConstraint(Sketcher.Constraint("Distance", 0, Q("3.81 mm")))
sketch18.addConstraint(Sketcher.Constraint("Distance", 1, Q("2.96 mm")))
sketch18.addConstraint(Sketcher.Constraint("DistanceX", -1, 1, 0, 2, Q("11.345882 mm")))
sketch18.addConstraint(Sketcher.Constraint("DistanceY", 1, 2, -1, 1, Q("9.654118 mm")))
pocket12 = doc.addObject("PartDesign::Pocket", "Pocket011")
body.addObject(pocket12)
pocket12.Profile = sketch18
pocket12.Length = 8.5

sketch19 = doc.addObject("Sketcher::SketchObject", "Sketch018")
body.addObject(sketch19)
sketch19.AttachmentSupport = (doc.XZ_Plane, [""])
sketch19.MapMode = "FlatFace"
sketch19.AttachmentOffset = App.Placement(App.Vector(0, 0, 10.5), App.Rotation())
sketch19.addGeometry(Part.LineSegment(App.Vector(10.8, -22.5, 0), App.Vector(14.6, -22.5, 0)), False)
sketch19.addGeometry(Part.LineSegment(App.Vector(14.6, -22.5, 0), App.Vector(14.6, -19.5, 0)), False)
sketch19.addGeometry(Part.LineSegment(App.Vector(14.6, -19.5, 0), App.Vector(10.8, -19.5, 0)), False)
sketch19.addGeometry(Part.LineSegment(App.Vector(10.8, -19.5, 0), App.Vector(10.8, -22.5, 0)), False)
sketch19.addConstraint(Sketcher.Constraint("Coincident", 0, 2, 1, 1))
sketch19.addConstraint(Sketcher.Constraint("Coincident", 1, 2, 2, 1))
sketch19.addConstraint(Sketcher.Constraint("Coincident", 2, 2, 3, 1))
sketch19.addConstraint(Sketcher.Constraint("Coincident", 3, 2, 0, 1))
sketch19.addConstraint(Sketcher.Constraint("Horizontal", 0))
sketch19.addConstraint(Sketcher.Constraint("Vertical", 1))
sketch19.addConstraint(Sketcher.Constraint("Horizontal", 2))
sketch19.addConstraint(Sketcher.Constraint("Vertical", 3))
sketch19.addConstraint(Sketcher.Constraint("DistanceX", 0, 1, 0, 2, Q("3.81 mm")))
sketch19.addConstraint(Sketcher.Constraint("DistanceY", 1, 1, 1, 2, Q("2.96 mm")))
sketch19.addConstraint(Sketcher.Constraint("DistanceY", 0, 2, -1, 1, Q("22.48 mm")))
sketch19.addConstraint(Sketcher.Constraint("DistanceX", -1, 1, 0, 2, Q("14.5655 mm")))
pocket13 = doc.addObject("PartDesign::Pocket", "Pocket012")
body.addObject(pocket13)
pocket13.Profile = sketch19
pocket13.Length = 8.5

sketch20 = doc.addObject("Sketcher::SketchObject", "Sketch019")
body.addObject(sketch20)
sketch20.AttachmentSupport = (doc.XZ_Plane, [""])
sketch20.MapMode = "FlatFace"
sketch20.AttachmentOffset = App.Placement(App.Vector(0, 0, 10.5), App.Rotation())
sketch20.addGeometry(Part.LineSegment(App.Vector(6.6, -29.7, 0), App.Vector(9.3, -32.3, 0)), False)
sketch20.addGeometry(Part.LineSegment(App.Vector(9.3, -32.3, 0), App.Vector(11.3, -30.3, 0)), False)
sketch20.addGeometry(Part.LineSegment(App.Vector(11.3, -30.3, 0), App.Vector(8.7, -27.6, 0)), False)
sketch20.addGeometry(Part.LineSegment(App.Vector(8.7, -27.6, 0), App.Vector(6.6, -29.7, 0)), False)
sketch20.addConstraint(Sketcher.Constraint("Coincident", 0, 2, 1, 1))
sketch20.addConstraint(Sketcher.Constraint("Coincident", 1, 2, 2, 1))
sketch20.addConstraint(Sketcher.Constraint("Coincident", 2, 2, 3, 1))
sketch20.addConstraint(Sketcher.Constraint("Coincident", 3, 2, 0, 1))
sketch20.addConstraint(Sketcher.Constraint("Perpendicular", 0, 1))
sketch20.addConstraint(Sketcher.Constraint("Perpendicular", 1, 2))
sketch20.addConstraint(Sketcher.Constraint("Perpendicular", 2, 3))
sketch20.addConstraint(Sketcher.Constraint("Angle", 0, Q("-45 deg")))
sketch20.addConstraint(Sketcher.Constraint("Distance", 0, Q("3.81 mm")))
sketch20.addConstraint(Sketcher.Constraint("Distance", 1, Q("2.96 mm")))
sketch20.addConstraint(Sketcher.Constraint("DistanceY", 0, 2, -1, 1, Q("32.345882 mm")))
sketch20.addConstraint(Sketcher.Constraint("DistanceX", -1, 1, 1, 2, Q("11.345882 mm")))
pocket14 = doc.addObject("PartDesign::Pocket", "Pocket013")
body.addObject(pocket14)
pocket14.Profile = sketch20
pocket14.Length = 8.5

sketch21 = doc.addObject("Sketcher::SketchObject", "Sketch020")
body.addObject(sketch21)
sketch21.AttachmentSupport = (doc.XZ_Plane, [""])
sketch21.MapMode = "FlatFace"
sketch21.AttachmentOffset = App.Placement(App.Vector(0, 0, 21), App.Rotation())
sketch21.addGeometry(Part.LineSegment(App.Vector(-17, 78, 0), App.Vector(-17, 30, 0)), False)
sketch21.addGeometry(Part.LineSegment(App.Vector(-17, 30, 0), App.Vector(17, 30, 0)), False)
sketch21.addGeometry(Part.LineSegment(App.Vector(17, 30, 0), App.Vector(17, 78, 0)), False)
sketch21.addGeometry(Part.LineSegment(App.Vector(17, 78, 0), App.Vector(-17, 78, 0)), False)
sketch21.addConstraint(Sketcher.Constraint("Coincident", 0, 2, 1, 1))
sketch21.addConstraint(Sketcher.Constraint("Coincident", 1, 2, 2, 1))
sketch21.addConstraint(Sketcher.Constraint("Coincident", 2, 2, 3, 1))
sketch21.addConstraint(Sketcher.Constraint("Coincident", 3, 2, 0, 1))
sketch21.addConstraint(Sketcher.Constraint("Vertical", 0))
sketch21.addConstraint(Sketcher.Constraint("Horizontal", 1))
sketch21.addConstraint(Sketcher.Constraint("Vertical", 2))
sketch21.addConstraint(Sketcher.Constraint("Horizontal", 3))
sketch21.addConstraint(Sketcher.Constraint("DistanceX", 1, 1, 1, 2, Q("34 mm")))
sketch21.addConstraint(Sketcher.Constraint("DistanceY", 0, 2, 0, 1, Q("49 mm")))
sketch21.addConstraint(Sketcher.Constraint("DistanceX", 0, 2, -1, 1, Q("17 mm")))
sketch21.addConstraint(Sketcher.Constraint("DistanceY", -1, 1, 0, 2, Q("29.5 mm")))
pocket15 = doc.addObject("PartDesign::Pocket", "Pocket014")
body.addObject(pocket15)
pocket15.Profile = sketch21
pocket15.Length = 32

sketch22 = doc.addObject("Sketcher::SketchObject", "Sketch021")
body.addObject(sketch22)
sketch22.AttachmentSupport = (doc.XZ_Plane, [""])
sketch22.MapMode = "FlatFace"
sketch22.AttachmentOffset = App.Placement(App.Vector(0, 0, 21), App.Rotation())
sketch22.addGeometry(Part.LineSegment(App.Vector(17, 30, 0), App.Vector(-17, 30, 0)), False)
sketch22.addGeometry(Part.LineSegment(App.Vector(-17, 30, 0), App.Vector(-17, 18, 0)), False)
sketch22.addGeometry(Part.LineSegment(App.Vector(-17, 18, 0), App.Vector(17, 18, 0)), False)
sketch22.addGeometry(Part.LineSegment(App.Vector(17, 18, 0), App.Vector(17, 30, 0)), False)
sketch22.addConstraint(Sketcher.Constraint("Coincident", 0, 2, 1, 1))
sketch22.addConstraint(Sketcher.Constraint("Coincident", 1, 2, 2, 1))
sketch22.addConstraint(Sketcher.Constraint("Coincident", 2, 2, 3, 1))
sketch22.addConstraint(Sketcher.Constraint("Coincident", 3, 2, 0, 1))
sketch22.addConstraint(Sketcher.Constraint("Horizontal", 0))
sketch22.addConstraint(Sketcher.Constraint("Vertical", 1))
sketch22.addConstraint(Sketcher.Constraint("Horizontal", 2))
sketch22.addConstraint(Sketcher.Constraint("Vertical", 3))
sketch22.addConstraint(Sketcher.Constraint("DistanceX", 0, 2, 0, 1, Q("34 mm")))
sketch22.addConstraint(Sketcher.Constraint("DistanceY", 1, 2, 1, 1, Q("11.1 mm")))
sketch22.addConstraint(Sketcher.Constraint("DistanceX", 0, 2, -1, 1, Q("17 mm")))
sketch22.addConstraint(Sketcher.Constraint("DistanceY", -1, 1, 0, 2, Q("29.5 mm")))
pocket16 = doc.addObject("PartDesign::Pocket", "Pocket015")
body.addObject(pocket16)
pocket16.Profile = sketch22
pocket16.Length = 27

sketch23 = doc.addObject("Sketcher::SketchObject", "Sketch022")
body.addObject(sketch23)
sketch23.AttachmentSupport = (doc.XZ_Plane, [""])
sketch23.MapMode = "FlatFace"
sketch23.AttachmentOffset = App.Placement(App.Vector(0, 0, -6), App.Rotation())
sketch23.addGeometry(Part.Circle(App.Vector(-13, 22.4, 0), App.Vector(0, 0, 1), 2.4), False)
sketch23.addConstraint(Sketcher.Constraint("Diameter", 0, Q("4.8 mm")))
sketch23.addConstraint(Sketcher.Constraint("DistanceX", 0, 3, -1, 1, Q("13 mm")))
sketch23.addConstraint(Sketcher.Constraint("DistanceY", -1, 1, 0, 3, Q("22.4 mm")))
pocket17 = doc.addObject("PartDesign::Pocket", "Pocket016")
body.addObject(pocket17)
pocket17.Profile = sketch23
pocket17.Type = "ThroughAll"
doc.recompute()

mirrored2 = doc.addObject("PartDesign::Mirrored", "Mirrored001")
body.addObject(mirrored2)
mirrored2.Originals = [pocket17]
mirrored2.MirrorPlane = (doc.YZ_Plane, [""])
body.Tip = mirrored2
doc.recompute()

fillet4 = doc.addObject("PartDesign::Fillet", "Fillet003")
body.addObject(fillet4)
fillet4.Base = (mirrored2, edges_at(mirrored2, [(17, -7.5, 18.4), (-17, -7.5, 18.4)]))
fillet4.Radius = 3
doc.recompute()

datumplane = doc.addObject("PartDesign::Plane", "DatumPlane")
body.addObject(datumplane)
datumplane.AttachmentSupport = (doc.XY_Plane, [""])
datumplane.MapMode = "FlatFace"
datumplane.AttachmentOffset = App.Placement(App.Vector(0, 0, 54), App.Rotation())
mirrored3 = doc.addObject("PartDesign::Mirrored", "Mirrored002")
body.addObject(mirrored3)
mirrored3.Originals = [pocket16, pocket17]
mirrored3.MirrorPlane = (datumplane, [""])
body.Tip = mirrored3

sketch24 = doc.addObject("Sketcher::SketchObject", "Sketch023")
body.addObject(sketch24)
sketch24.AttachmentSupport = (doc.XZ_Plane, [""])
sketch24.MapMode = "FlatFace"
sketch24.AttachmentOffset = App.Placement(App.Vector(0, 0, -6), App.Rotation())
sketch24.addGeometry(Part.Circle(App.Vector(13, 85.6, 0), App.Vector(0, 0, 1), 2.4), False)
sketch24.addConstraint(Sketcher.Constraint("Diameter", 0, Q("4.8 mm")))
sketch24.addConstraint(Sketcher.Constraint("DistanceX", -1, 1, 0, 3, Q("13 mm")))
sketch24.addConstraint(Sketcher.Constraint("DistanceY", -1, 1, 0, 3, Q("85.6 mm")))
pocket18 = doc.addObject("PartDesign::Pocket", "Pocket017")
body.addObject(pocket18)
pocket18.Profile = sketch24
pocket18.Type = "ThroughAll"
doc.recompute()

fillet5 = doc.addObject("PartDesign::Fillet", "Fillet004")
body.addObject(fillet5)
fillet5.Base = (pocket18, edges_at(pocket18, [(17, -7.5, 89.6), (-17, -7.5, 89.6)]))
fillet5.Radius = 3

sketch25 = doc.addObject("Sketcher::SketchObject", "Sketch024")
body.addObject(sketch25)
sketch25.AttachmentSupport = (doc.XZ_Plane, [""])
sketch25.MapMode = "FlatFace"
sketch25.AttachmentOffset = App.Placement(App.Vector(0, 0, -21), App.Rotation())
sketch25.addGeometry(Part.LineSegment(App.Vector(-21, 17, 0), App.Vector(0, 0, 0)), False)
sketch25.addGeometry(Part.LineSegment(App.Vector(0, 0, 0), App.Vector(-21, 0, 0)), False)
sketch25.addGeometry(Part.LineSegment(App.Vector(-21, 0, 0), App.Vector(-21, 17, 0)), False)
sketch25.addGeometry(Part.LineSegment(App.Vector(21, 0, 0), App.Vector(0, 0, 0)), False)
sketch25.addGeometry(Part.LineSegment(App.Vector(0, 0, 0), App.Vector(21, 17, 0)), False)
sketch25.addGeometry(Part.LineSegment(App.Vector(21, 17, 0), App.Vector(21, 0, 0)), False)
sketch25.addConstraint(Sketcher.Constraint("Coincident", 0, 2, 1, 1))
sketch25.addConstraint(Sketcher.Constraint("Coincident", 1, 2, 2, 1))
sketch25.addConstraint(Sketcher.Constraint("Coincident", 2, 2, 0, 1))
sketch25.addConstraint(Sketcher.Constraint("Coincident", 3, 2, 4, 1))
sketch25.addConstraint(Sketcher.Constraint("Coincident", 4, 2, 5, 1))
sketch25.addConstraint(Sketcher.Constraint("Coincident", 5, 2, 3, 1))
sketch25.addConstraint(Sketcher.Constraint("Horizontal", 1))
sketch25.addConstraint(Sketcher.Constraint("Vertical", 2))
sketch25.addConstraint(Sketcher.Constraint("Horizontal", 3))
sketch25.addConstraint(Sketcher.Constraint("Vertical", 5))
sketch25.addConstraint(Sketcher.Constraint("Coincident", 0, 2, -1, 1))
sketch25.addConstraint(Sketcher.Constraint("Coincident", 3, 2, -1, 1))
sketch25.addConstraint(Sketcher.Constraint("Symmetric", 2, 2, 4, 2, -2))
sketch25.addConstraint(Sketcher.Constraint("DistanceX", 1, 2, 1, 1, Q("21 mm")))
sketch25.addConstraint(Sketcher.Constraint("DistanceY", 2, 1, 2, 2, Q("17.421516 mm")))
pocket19 = doc.addObject("PartDesign::Pocket", "Pocket018")
body.addObject(pocket19)
pocket19.Profile = sketch25
pocket19.Length = 10.5
pocket19.Reversed = True
doc.recompute()

fillet6 = doc.addObject("PartDesign::Fillet", "Fillet005")
body.addObject(fillet6)
fillet6.Base = (pocket19, edges_at(pocket19, [(0, 15.75, 0)]))
fillet6.Radius = 20
doc.recompute()

mirrored4 = doc.addObject("PartDesign::Mirrored", "Mirrored003")
body.addObject(mirrored4)
mirrored4.Originals = [pocket19]
mirrored4.MirrorPlane = (doc.XZ_Plane, [""])
body.Tip = mirrored4
doc.recompute()

fillet7 = doc.addObject("PartDesign::Fillet", "Fillet006")
body.addObject(fillet7)
fillet7.Base = (mirrored4, edges_at(mirrored4, [(0, -15.75, 0)]))
fillet7.Radius = 20
doc.recompute()

fillet8 = doc.addObject("PartDesign::Fillet", "Fillet007")
body.addObject(fillet8)
fillet8.Base = (fillet7, edges_at(fillet7, [
    (-21, 15.75, 17.422),
    (21, 15.75, 17.422),
    (-21, -15.75, 17.422),
    (21, -15.75, 17.422),
]))
fillet8.Radius = 4

sketch26 = doc.addObject("Sketcher::SketchObject", "Sketch025")
body.addObject(sketch26)
sketch26.AttachmentSupport = (doc.XZ_Plane, [""])
sketch26.MapMode = "FlatFace"
sketch26.AttachmentOffset = App.Placement(App.Vector(0, 0, -11), App.Rotation())
sketch26.addGeometry(Part.Circle(App.Vector(0, 40, 0), App.Vector(0, 0, 1), 7), False)
sketch26.addGeometry(Part.LineSegment(App.Vector(-11, 76, 0), App.Vector(-11, 66, 0)), False)
sketch26.addGeometry(Part.LineSegment(App.Vector(-11, 66, 0), App.Vector(11, 66, 0)), False)
sketch26.addGeometry(Part.LineSegment(App.Vector(11, 66, 0), App.Vector(11, 76, 0)), False)
sketch26.addGeometry(Part.LineSegment(App.Vector(11, 76, 0), App.Vector(-11, 76, 0)), False)
sketch26.addGeometry(Part.LineSegment(App.Vector(-11, 61, 0), App.Vector(-11, 50, 0)), False)
sketch26.addGeometry(Part.LineSegment(App.Vector(-11, 50, 0), App.Vector(11, 50, 0)), False)
sketch26.addGeometry(Part.LineSegment(App.Vector(11, 50, 0), App.Vector(11, 61, 0)), False)
sketch26.addGeometry(Part.LineSegment(App.Vector(11, 61, 0), App.Vector(-11, 61, 0)), False)
sketch26.addConstraint(Sketcher.Constraint("Coincident", 1, 2, 2, 1))
sketch26.addConstraint(Sketcher.Constraint("Coincident", 2, 2, 3, 1))
sketch26.addConstraint(Sketcher.Constraint("Coincident", 3, 2, 4, 1))
sketch26.addConstraint(Sketcher.Constraint("Coincident", 4, 2, 1, 1))
sketch26.addConstraint(Sketcher.Constraint("Coincident", 5, 2, 6, 1))
sketch26.addConstraint(Sketcher.Constraint("Coincident", 6, 2, 7, 1))
sketch26.addConstraint(Sketcher.Constraint("Coincident", 7, 2, 8, 1))
sketch26.addConstraint(Sketcher.Constraint("Coincident", 8, 2, 5, 1))
sketch26.addConstraint(Sketcher.Constraint("Vertical", 1))
sketch26.addConstraint(Sketcher.Constraint("Horizontal", 2))
sketch26.addConstraint(Sketcher.Constraint("Vertical", 3))
sketch26.addConstraint(Sketcher.Constraint("Horizontal", 4))
sketch26.addConstraint(Sketcher.Constraint("Vertical", 5))
sketch26.addConstraint(Sketcher.Constraint("Horizontal", 6))
sketch26.addConstraint(Sketcher.Constraint("Vertical", 7))
sketch26.addConstraint(Sketcher.Constraint("Horizontal", 8))
sketch26.addConstraint(Sketcher.Constraint("PointOnObject", 0, 3, -2))
sketch26.addConstraint(Sketcher.Constraint("Diameter", 0, Q("13.12 mm")))
sketch26.addConstraint(Sketcher.Constraint("DistanceY", 1, 2, 1, 1, Q("10 mm")))
sketch26.addConstraint(Sketcher.Constraint("DistanceY", 5, 2, 5, 1, Q("11 mm")))
sketch26.addConstraint(Sketcher.Constraint("DistanceX", 6, 1, 6, 2, Q("22.2 mm")))
sketch26.addConstraint(Sketcher.Constraint("DistanceY", 0, 3, 5, 2, Q("10 mm")))
sketch26.addConstraint(Sketcher.Constraint("DistanceX", 2, 1, 2, 2, Q("22.45 mm")))
sketch26.addConstraint(Sketcher.Constraint("DistanceY", -1, 1, 1, 2, Q("65.5 mm")))
sketch26.addConstraint(Sketcher.Constraint("DistanceX", 5, 2, -1, 1, Q("11.1 mm")))
sketch26.addConstraint(Sketcher.Constraint("DistanceY", -1, 1, 0, 3, Q("40.44 mm")))
sketch26.addConstraint(Sketcher.Constraint("DistanceX", 1, 2, -1, 1, Q("11.225 mm")))
pocket20 = doc.addObject("PartDesign::Pocket", "Pocket019")
body.addObject(pocket20)
pocket20.Profile = sketch26
pocket20.Type = "ThroughAll"

doc.recompute()
